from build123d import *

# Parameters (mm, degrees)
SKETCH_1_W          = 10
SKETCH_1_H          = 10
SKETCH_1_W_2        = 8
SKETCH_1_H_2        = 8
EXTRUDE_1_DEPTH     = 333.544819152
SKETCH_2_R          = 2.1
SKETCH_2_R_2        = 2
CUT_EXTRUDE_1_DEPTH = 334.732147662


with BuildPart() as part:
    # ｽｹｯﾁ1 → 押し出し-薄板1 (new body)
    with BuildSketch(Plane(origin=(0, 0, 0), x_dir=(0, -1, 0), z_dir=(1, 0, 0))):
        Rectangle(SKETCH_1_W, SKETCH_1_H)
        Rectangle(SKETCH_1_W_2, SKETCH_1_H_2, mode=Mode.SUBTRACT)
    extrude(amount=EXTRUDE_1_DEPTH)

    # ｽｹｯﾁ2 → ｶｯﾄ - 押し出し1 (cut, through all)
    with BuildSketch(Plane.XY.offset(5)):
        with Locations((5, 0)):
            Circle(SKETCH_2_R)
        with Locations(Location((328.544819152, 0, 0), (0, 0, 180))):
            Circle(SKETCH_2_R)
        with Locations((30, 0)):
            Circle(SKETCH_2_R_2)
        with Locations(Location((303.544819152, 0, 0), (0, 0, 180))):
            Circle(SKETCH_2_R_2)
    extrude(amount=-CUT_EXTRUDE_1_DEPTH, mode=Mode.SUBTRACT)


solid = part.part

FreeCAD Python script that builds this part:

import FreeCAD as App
import Part
import Sketcher
from FreeCAD import Vector

doc = App.newDocument("Part")
params = doc.addObject("Spreadsheet::Sheet", "Params")
for row, (alias, value) in enumerate([
    ("sketch1_width", "10 mm"),
    ("sketch1_width2", "8 mm"),
    ("pad1_length", "333.544819 mm"),
    ("sketch2_diameter", "4 mm"),
    ("sketch2_diameter2", "4.2 mm"),
], start=1):
    params.set(f"A{row}", alias)
    params.set(f"B{row}", "=" + value)
    params.setAlias(f"B{row}", alias)

body = doc.addObject("PartDesign::Body", "Body")

sketch1 = body.newObject("Sketcher::SketchObject", "Sketch")
sketch1.AttachmentSupport = (doc.getObject("YZ_Plane"), [""])
sketch1.MapMode = "FlatFace"
sketch1.addGeometry([
    Part.LineSegment(Vector(5, -5, 0), Vector(5, 5, 0)),
    Part.LineSegment(Vector(5, 5, 0), Vector(-5, 5, 0)),
    Part.LineSegment(Vector(-5, 5, 0), Vector(-5, -5, 0)),
    Part.LineSegment(Vector(-5, -5, 0), Vector(5, -5, 0)),
    Part.LineSegment(Vector(-4, 4, 0), Vector(4, 4, 0)),
    Part.LineSegment(Vector(4, 4, 0), Vector(4, -4, 0)),
    Part.LineSegment(Vector(4, -4, 0), Vector(-4, -4, 0)),
    Part.LineSegment(Vector(-4, -4, 0), Vector(-4, 4, 0)),
], False)
sketch1.addConstraint([
    Sketcher.Constraint("Coincident", 0, 2, 1, 1),
    Sketcher.Constraint("Coincident", 1, 2, 2, 1),
    Sketcher.Constraint("Coincident", 2, 2, 3, 1),
    Sketcher.Constraint("Coincident", 3, 2, 0, 1),
    Sketcher.Constraint("Coincident", 4, 2, 5, 1),
    Sketcher.Constraint("Coincident", 5, 2, 6, 1),
    Sketcher.Constraint("Coincident", 6, 2, 7, 1),
    Sketcher.Constraint("Coincident", 7, 2, 4, 1),
    Sketcher.Constraint("Vertical", 0),
    Sketcher.Constraint("Horizontal", 1),
    Sketcher.Constraint("Vertical", 2),
    Sketcher.Constraint("Horizontal", 3),
    Sketcher.Constraint("Horizontal", 4),
    Sketcher.Constraint("Vertical", 5),
    Sketcher.Constraint("Horizontal", 6),
    Sketcher.Constraint("Vertical", 7),
    Sketcher.Constraint("Symmetric", 0, 2, 2, 2, -1, 1),
    Sketcher.Constraint("Symmetric", 4, 2, 6, 2, -1, 1),
    Sketcher.Constraint("Equal", 3, 0),
    Sketcher.Constraint("Equal", 6, 5),
    Sketcher.Constraint("DistanceX", 1, 2, 1, 1, 10.0),
    Sketcher.Constraint("DistanceX", 4, 1, 4, 2, 8.0),
])
sketch1.setExpression("Constraints[20]", "Params.sketch1_width")
sketch1.setExpression("Constraints[21]", "Params.sketch1_width2")
pad1 = body.newObject("PartDesign::Pad", "Pad")
pad1.Profile = sketch1
pad1.setExpression("Length", "Params.pad1_length")

sketch2 = body.newObject("Sketcher::SketchObject", "Sketch001")
sketch2.AttachmentSupport = (doc.getObject("XY_Plane"), [""])
sketch2.MapMode = "FlatFace"
sketch2.AttachmentOffset = App.Placement(Vector(0, 0, 5), App.Rotation())
sketch2.addGeometry([
    Part.Circle(Vector(5, 0, 0), Vector(0, 0, 1), 2.1),
    Part.Circle(Vector(328.5, 0, 0), Vector(0, 0, 1), 2.1),
    Part.Circle(Vector(30, 0, 0), Vector(0, 0, 1), 2),
    Part.Circle(Vector(303.5, 0, 0), Vector(0, 0, 1), 2),
], False)
sketch2.addConstraint([
    Sketcher.Constraint("Equal", 0, 1),
    Sketcher.Constraint("Equal", 2, 3),
    Sketcher.Constraint("PointOnObject", 0, 3, -1),
    Sketcher.Constraint("PointOnObject", 1, 3, -1),
    Sketcher.Constraint("PointOnObject", 2, 3, -1),
    Sketcher.Constraint("PointOnObject", 3, 3, -1),
    Sketcher.Constraint("Diameter", 2, 4.0),
    Sketcher.Constraint("Diameter", 0, 4.2),
    Sketcher.Constraint("DistanceX", -1, 1, 0, 3, 5.0),
    Sketcher.Constraint("DistanceX", -1, 1, 2, 3, 30.0),
    Sketcher.Constraint("DistanceX", 3, 3, 1, 3, 25.0),
    Sketcher.Constraint("DistanceX", -1, 1, 1, 3, 328.544819),
])
sketch2.setExpression("Constraints[6]", "Params.sketch2_diameter")
sketch2.setExpression("Constraints[7]", "Params.sketch2_diameter2")
pocket1 = body.newObject("PartDesign::Pocket", "Pocket")
pocket1.Profile = sketch2
pocket1.Type = "ThroughAll"

doc.recompute()
